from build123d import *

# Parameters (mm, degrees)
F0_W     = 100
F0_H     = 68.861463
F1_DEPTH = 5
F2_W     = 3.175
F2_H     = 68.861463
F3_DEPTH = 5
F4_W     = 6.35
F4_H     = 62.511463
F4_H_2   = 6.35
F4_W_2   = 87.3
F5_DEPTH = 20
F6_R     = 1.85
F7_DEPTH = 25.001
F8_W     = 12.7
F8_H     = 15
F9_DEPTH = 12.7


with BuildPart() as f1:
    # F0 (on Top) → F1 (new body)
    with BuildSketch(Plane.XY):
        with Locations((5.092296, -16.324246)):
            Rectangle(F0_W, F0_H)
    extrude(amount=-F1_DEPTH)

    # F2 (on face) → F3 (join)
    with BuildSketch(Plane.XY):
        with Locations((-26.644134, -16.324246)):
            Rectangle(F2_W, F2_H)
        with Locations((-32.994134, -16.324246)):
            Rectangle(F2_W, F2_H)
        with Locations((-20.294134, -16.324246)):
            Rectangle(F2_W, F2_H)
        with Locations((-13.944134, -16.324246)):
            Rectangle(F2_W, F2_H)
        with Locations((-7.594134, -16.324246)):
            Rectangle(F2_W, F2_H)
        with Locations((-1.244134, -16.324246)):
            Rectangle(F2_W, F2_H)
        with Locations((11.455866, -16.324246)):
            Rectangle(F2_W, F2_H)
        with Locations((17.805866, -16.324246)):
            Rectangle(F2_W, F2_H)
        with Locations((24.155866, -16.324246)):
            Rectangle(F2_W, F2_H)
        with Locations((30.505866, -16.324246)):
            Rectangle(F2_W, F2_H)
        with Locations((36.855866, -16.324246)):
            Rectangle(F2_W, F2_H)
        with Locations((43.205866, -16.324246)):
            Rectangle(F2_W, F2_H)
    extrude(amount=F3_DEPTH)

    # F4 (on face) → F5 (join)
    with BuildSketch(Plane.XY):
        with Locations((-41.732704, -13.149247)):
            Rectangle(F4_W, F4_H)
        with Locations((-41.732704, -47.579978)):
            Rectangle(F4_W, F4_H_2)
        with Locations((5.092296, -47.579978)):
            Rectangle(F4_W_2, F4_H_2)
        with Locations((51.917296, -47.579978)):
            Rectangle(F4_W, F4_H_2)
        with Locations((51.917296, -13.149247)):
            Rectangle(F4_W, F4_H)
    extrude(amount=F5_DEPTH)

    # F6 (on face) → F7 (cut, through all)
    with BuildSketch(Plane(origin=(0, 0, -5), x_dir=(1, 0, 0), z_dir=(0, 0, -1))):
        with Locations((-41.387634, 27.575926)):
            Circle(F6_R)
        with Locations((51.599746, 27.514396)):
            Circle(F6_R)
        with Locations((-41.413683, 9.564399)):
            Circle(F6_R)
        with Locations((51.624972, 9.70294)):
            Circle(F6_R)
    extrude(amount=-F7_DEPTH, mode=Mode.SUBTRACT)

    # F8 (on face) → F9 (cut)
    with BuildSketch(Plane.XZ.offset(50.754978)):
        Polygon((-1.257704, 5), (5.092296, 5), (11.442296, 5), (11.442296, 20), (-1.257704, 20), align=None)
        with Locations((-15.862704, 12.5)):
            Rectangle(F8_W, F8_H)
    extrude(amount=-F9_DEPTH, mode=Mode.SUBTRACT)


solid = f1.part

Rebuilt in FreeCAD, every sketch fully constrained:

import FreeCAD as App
import Part
import Sketcher
Q = App.Units.Quantity


def add_polygon(sketch, points):
    """Adds a closed chain of lines whose ends are joined by coincident constraints."""
    first, n = sketch.GeometryCount, len(points)
    for a, b in zip(points, points[1:] + points[:1]):
        sketch.addGeometry(Part.LineSegment(App.Vector(*a, 0), App.Vector(*b, 0)), False)
    for i in range(n):
        sketch.addConstraint(Sketcher.Constraint("Coincident", first + i, 2, first + (i + 1) % n, 1))

doc = App.newDocument("Part")
body = doc.addObject("PartDesign::Body", "Body")

sketch1 = body.newObject("Sketcher::SketchObject", "Sketch")
sketch1.AttachmentSupport = (doc.getObject("XY_Plane"), [""])
sketch1.MapMode = "FlatFace"
add_polygon(sketch1, [(-45, 18), (-45, -51), (55, -51), (55, 18)])
sketch1.addConstraint(Sketcher.Constraint("Vertical", 0))
sketch1.addConstraint(Sketcher.Constraint("Horizontal", 1))
sketch1.addConstraint(Sketcher.Constraint("Vertical", 2))
sketch1.addConstraint(Sketcher.Constraint("Horizontal", 3))
sketch1.addConstraint(Sketcher.Constraint("DistanceX", 1, 1, 1, 2, Q("100 mm")))
sketch1.addConstraint(Sketcher.Constraint("DistanceY", 0, 2, 0, 1, Q("68.861463 mm")))
sketch1.addConstraint(Sketcher.Constraint("DistanceX", 0, 2, -1, 1, Q("44.907704 mm")))
sketch1.addConstraint(Sketcher.Constraint("DistanceY", 0, 2, -1, 1, Q("50.754978 mm")))
pad1 = body.newObject("PartDesign::Pad", "Pad")
pad1.Profile = sketch1
pad1.Length = 5
pad1.Reversed = True

sketch2 = body.newObject("Sketcher::SketchObject", "Sketch001")
sketch2.AttachmentSupport = (doc.getObject("XY_Plane"), [""])
sketch2.MapMode = "FlatFace"
add_polygon(sketch2, [(-28.2, 18.1), (-28.2, -50.8), (-25.1, -50.8), (-25.1, 18.1)])
add_polygon(sketch2, [(-34.6, 18.1), (-34.6, -50.8), (-31.4, -50.8), (-31.4, 18.1)])
add_polygon(sketch2, [(-21.9, 18.1), (-21.9, -50.8), (-18.7, -50.8), (-18.7, 18.1)])
add_polygon(sketch2, [(-15.5, 18.1), (-15.5, -50.8), (-12.4, -50.8), (-12.4, 18.1)])
add_polygon(sketch2, [(-9.2, 18.1), (-9.2, -50.8), (-6, -50.8), (-6, 18.1)])
add_polygon(sketch2, [(-2.8, 18.1), (-2.8, -50.8), (0.3, -50.8), (0.3, 18.1)])
add_polygon(sketch2, [(9.9, 18.1), (9.9, -50.8), (13, -50.8), (13, 18.1)])
add_polygon(sketch2, [(16.2, 18.1), (16.2, -50.8), (19.4, -50.8), (19.4, 18.1)])
add_polygon(sketch2, [(22.6, 18.1), (22.6, -50.8), (25.7, -50.8), (25.7, 18.1)])
add_polygon(sketch2, [(28.9, 18.1), (28.9, -50.8), (32.1, -50.8), (32.1, 18.1)])
add_polygon(sketch2, [(35.3, 18.1), (35.3, -50.8), (38.4, -50.8), (38.4, 18.1)])
add_polygon(sketch2, [(41.6, 18.1), (41.6, -50.8), (44.8, -50.8), (44.8, 18.1)])
sketch2.addConstraint(Sketcher.Constraint("Vertical", 0))
sketch2.addConstraint(Sketcher.Constraint("Horizontal", 1))
sketch2.addConstraint(Sketcher.Constraint("Vertical", 2))
sketch2.addConstraint(Sketcher.Constraint("Horizontal", 3))
sketch2.addConstraint(Sketcher.Constraint("Vertical", 4))
sketch2.addConstraint(Sketcher.Constraint("Horizontal", 5))
sketch2.addConstraint(Sketcher.Constraint("Vertical", 6))
sketch2.addConstraint(Sketcher.Constraint("Horizontal", 7))
sketch2.addConstraint(Sketcher.Constraint("Vertical", 8))
sketch2.addConstraint(Sketcher.Constraint("Horizontal", 9))
sketch2.addConstraint(Sketcher.Constraint("Vertical", 10))
sketch2.addConstraint(Sketcher.Constraint("Horizontal", 11))
sketch2.addConstraint(Sketcher.Constraint("Vertical", 12))
sketch2.addConstraint(Sketcher.Constraint("Horizontal", 13))
sketch2.addConstraint(Sketcher.Constraint("Vertical", 14))
sketch2.addConstraint(Sketcher.Constraint("Horizontal", 15))
sketch2.addConstraint(Sketcher.Constraint("Vertical", 16))
sketch2.addConstraint(Sketcher.Constraint("Horizontal", 17))
sketch2.addConstraint(Sketcher.Constraint("Vertical", 18))
sketch2.addConstraint(Sketcher.Constraint("Horizontal", 19))
sketch2.addConstraint(Sketcher.Constraint("Vertical", 20))
sketch2.addConstraint(Sketcher.Constraint("Horizontal", 21))
sketch2.addConstraint(Sketcher.Constraint("Vertical", 22))
sketch2.addConstraint(Sketcher.Constraint("Horizontal", 23))
sketch2.addConstraint(Sketcher.Constraint("Vertical", 24))
sketch2.addConstraint(Sketcher.Constraint("Horizontal", 25))
sketch2.addConstraint(Sketcher.Constraint("Vertical", 26))
sketch2.addConstraint(Sketcher.Constraint("Horizontal", 27))
sketch2.addConstraint(Sketcher.Constraint("Vertical", 28))
sketch2.addConstraint(Sketcher.Constraint("Horizontal", 29))
sketch2.addConstraint(Sketcher.Constraint("Vertical", 30))
sketch2.addConstraint(Sketcher.Constraint("Horizontal", 31))
sketch2.addConstraint(Sketcher.Constraint("Vertical", 32))
sketch2.addConstraint(Sketcher.Constraint("Horizontal", 33))
sketch2.addConstraint(Sketcher.Constraint("Vertical", 34))
sketch2.addConstraint(Sketcher.Constraint("Horizontal", 35))
sketch2.addConstraint(Sketcher.Constraint("Vertical", 36))
sketch2.addConstraint(Sketcher.Constraint("Horizontal", 37))
sketch2.addConstraint(Sketcher.Constraint("Vertical", 38))
sketch2.addConstraint(Sketcher.Constraint("Horizontal", 39))
sketch2.addConstraint(Sketcher.Constraint("Vertical", 40))
sketch2.addConstraint(Sketcher.Constraint("Horizontal", 41))
sketch2.addConstraint(Sketcher.Constraint("Vertical", 42))
sketch2.addConstraint(Sketcher.Constraint("Horizontal", 43))
sketch2.addConstraint(Sketcher.Constraint("Vertical", 44))
sketch2.addConstraint(Sketcher.Constraint("Horizontal", 45))
sketch2.addConstraint(Sketcher.Constraint("Vertical", 46))
sketch2.addConstraint(Sketcher.Constraint("Horizontal", 47))
sketch2.addConstraint(Sketcher.Constraint("Horizontal", 1, 2, 4, 2))
sketch2.addConstraint(Sketcher.Constraint("Horizontal", 3, 2, 6, 2))
sketch2.addConstraint(Sketcher.Constraint("Horizontal", 5, 2, 8, 2))
sketch2.addConstraint(Sketcher.Constraint("Horizontal", 7, 2, 10, 2))
sketch2.addConstraint(Sketcher.Constraint("Horizontal", 9, 2, 12, 2))
sketch2.addConstraint(Sketcher.Constraint("Horizontal", 11, 2, 14, 2))
sketch2.addConstraint(Sketcher.Constraint("Horizontal", 13, 2, 16, 2))
sketch2.addConstraint(Sketcher.Constraint("Horizontal", 15, 2, 18, 2))
sketch2.addConstraint(Sketcher.Constraint("Horizontal", 17, 2, 20, 2))
sketch2.addConstraint(Sketcher.Constraint("Horizontal", 19, 2, 22, 2))
sketch2.addConstraint(Sketcher.Constraint("Horizontal", 21, 2, 24, 2))
sketch2.addConstraint(Sketcher.Constraint("Horizontal", 23, 2, 26, 2))
sketch2.addConstraint(Sketcher.Constraint("Horizontal", 25, 2, 28, 2))
sketch2.addConstraint(Sketcher.Constraint("Horizontal", 27, 2, 30, 2))
sketch2.addConstraint(Sketcher.Constraint("Horizontal", 29, 2, 32, 2))
sketch2.addConstraint(Sketcher.Constraint("Horizontal", 31, 2, 34, 2))
sketch2.addConstraint(Sketcher.Constraint("Horizontal", 33, 2, 36, 2))
sketch2.addConstraint(Sketcher.Constraint("Horizontal", 35, 2, 38, 2))
sketch2.addConstraint(Sketcher.Constraint("Horizontal", 37, 2, 40, 2))
sketch2.addConstraint(Sketcher.Constraint("Horizontal", 39, 2, 42, 2))
sketch2.addConstraint(Sketcher.Constraint("Horizontal", 41, 2, 44, 2))
sketch2.addConstraint(Sketcher.Constraint("Horizontal", 43, 2, 46, 2))
sketch2.addConstraint(Sketcher.Constraint("Equal", 3, 5))
sketch2.addConstraint(Sketcher.Constraint("Equal", 7, 9))
sketch2.addConstraint(Sketcher.Constraint("Equal", 11, 13))
sketch2.addConstraint(Sketcher.Constraint("Equal", 15, 17))
sketch2.addConstraint(Sketcher.Constraint("Equal", 19, 21))
sketch2.addConstraint(Sketcher.Constraint("Equal", 23, 25))
sketch2.addConstraint(Sketcher.Constraint("Equal", 27, 29))
sketch2.addConstraint(Sketcher.Constraint("Equal", 31, 33))
sketch2.addConstraint(Sketcher.Constraint("Equal", 35, 37))
sketch2.addConstraint(Sketcher.Constraint("Equal", 39, 41))
sketch2.addConstraint(Sketcher.Constraint("Equal", 43, 45))
sketch2.addConstraint(Sketcher.Constraint("DistanceX", 4, 2, 8, 2, Q("12.7 mm")))
sketch2.addConstraint(Sketcher.Constraint("DistanceX", 0, 2, 12, 2, Q("12.7 mm")))
sketch2.addConstraint(Sketcher.Constraint("DistanceX", 8, 2, 16, 2, Q("12.7 mm")))
sketch2.addConstraint(Sketcher.Constraint("DistanceX", 12, 2, 20, 2, Q("12.7 mm")))
sketch2.addConstraint(Sketcher.Constraint("DistanceX", 20, 2, 24, 2, Q("12.7 mm")))
sketch2.addConstraint(Sketcher.Constraint("DistanceX", 18, 2, 30, 2, Q("25.4 mm")))
sketch2.addConstraint(Sketcher.Constraint("DistanceX", 24, 2, 32, 2, Q("12.7 mm")))
sketch2.addConstraint(Sketcher.Constraint("DistanceX", 28, 2, 36, 2, Q("12.7 mm")))
sketch2.addConstraint(Sketcher.Constraint("DistanceX", 32, 2, 40, 2, Q("12.7 mm")))
sketch2.addConstraint(Sketcher.Constraint("DistanceX", 36, 2, 44, 2, Q("12.7 mm")))
sketch2.addConstraint(Sketcher.Constraint("DistanceX", 1, 1, 1, 2, Q("3.175 mm")))
sketch2.addConstraint(Sketcher.Constraint("DistanceX", 4, 2, 0, 2, Q("6.35 mm")))
sketch2.addConstraint(Sketcher.Constraint("DistanceY", 0, 2, 0, 1, Q("68.861463 mm")))
sketch2.addConstraint(Sketcher.Constraint("DistanceX", 0, 2, -1, 1, Q("28.231634 mm")))
sketch2.addConstraint(Sketcher.Constraint("DistanceY", 0, 2, -1, 1, Q("50.754978 mm")))
pad2 = body.newObject("PartDesign::Pad", "Pad001")
pad2.Profile = sketch2
pad2.Length = 5

sketch3 = body.newObject("Sketcher::SketchObject", "Sketch002")
sketch3.AttachmentSupport = (doc.getObject("XY_Plane"), [""])
sketch3.MapMode = "FlatFace"
add_polygon(sketch3, [(-45, 18), (-45, -51), (55, -51), (55, 18), (49, 18), (49, -44), (-39, -44), (-39, 18)])
sketch3.addConstraint(Sketcher.Constraint("Vertical", 0))
sketch3.addConstraint(Sketcher.Constraint("Horizontal", 1))
sketch3.addConstraint(Sketcher.Constraint("Vertical", 2))
sketch3.addConstraint(Sketcher.Constraint("Horizontal", 3))
sketch3.addConstraint(Sketcher.Constraint("Vertical", 4))
sketch3.addConstraint(Sketcher.Constraint("Horizontal", 5))
sketch3.addConstraint(Sketcher.Constraint("Vertical", 6))
sketch3.addConstraint(Sketcher.Constraint("Horizontal", 7))
sketch3.addConstraint(Sketcher.Constraint("Horizontal", 3, 2, 6, 2))
sketch3.addConstraint(Sketcher.Constraint("Equal", 3, 7))
sketch3.addConstraint(Sketcher.Constraint("DistanceX", 1, 1, 1, 2, Q("100 mm")))
sketch3.addConstraint(Sketcher.Constraint("DistanceX", 5, 2, 5, 1, Q("87.3 mm")))
sketch3.addConstraint(Sketcher.Constraint("DistanceY", 1, 2, 4, 2, Q("6.35 mm")))
sketch3.addConstraint(Sketcher.Constraint("DistanceY", 0, 2, 0, 1, Q("68.861463 mm")))
sketch3.addConstraint(Sketcher.Constraint("DistanceX", 0, 2, -1, 1, Q("44.907704 mm")))
sketch3.addConstraint(Sketcher.Constraint("DistanceY", 0, 2, -1, 1, Q("50.754978 mm")))
pad3 = body.newObject("PartDesign::Pad", "Pad002")
pad3.Profile = sketch3
pad3.Length = 20

sketch4 = body.newObject("Sketcher::SketchObject", "Sketch003")
sketch4.AttachmentSupport = (doc.getObject("XY_Plane"), [""])
sketch4.MapMode = "FlatFace"
sketch4.AttachmentOffset = App.Placement(App.Vector(0, 0, -5), App.Rotation())
sketch4.addGeometry(Part.Circle(App.Vector(-41.4, -27.6, 0), App.Vector(0, 0, 1), 1.9), False)
sketch4.addGeometry(Part.Circle(App.Vector(51.6, -27.5, 0), App.Vector(0, 0, 1), 1.9), False)
sketch4.addGeometry(Part.Circle(App.Vector(-41.4, -9.6, 0), App.Vector(0, 0, 1), 1.9), False)
sketch4.addGeometry(Part.Circle(App.Vector(51.6, -9.7, 0), App.Vector(0, 0, 1), 1.9), False)
sketch4.addConstraint(Sketcher.Constraint("Equal", 0, 1))
sketch4.addConstraint(Sketcher.Constraint("Equal", 1, 2))
sketch4.addConstraint(Sketcher.Constraint("Equal", 2, 3))
sketch4.addConstraint(Sketcher.Constraint("Diameter", 0, Q("3.7 mm")))
sketch4.addConstraint(Sketcher.Constraint("DistanceY", 2, 3, -1, 1, Q("9.564399 mm")))
sketch4.addConstraint(Sketcher.Constraint("DistanceY", 3, 3, -1, 1, Q("9.70294 mm")))
sketch4.addConstraint(Sketcher.Constraint("DistanceX", 0, 3, 1, 3, Q("92.98738 mm")))
sketch4.addConstraint(Sketcher.Constraint("DistanceY", 0, 3, 1, 3, Q("0.06153 mm")))
sketch4.addConstraint(Sketcher.Constraint("DistanceX", 2, 3, 0, 3, Q("0.026049 mm")))
sketch4.addConstraint(Sketcher.Constraint("DistanceX", 0, 3, -1, 1, Q("41.387634 mm")))
sketch4.addConstraint(Sketcher.Constraint("DistanceY", 0, 3, -1, 1, Q("27.575926 mm")))
sketch4.addConstraint(Sketcher.Constraint("DistanceX", -1, 1, 3, 3, Q("51.624972 mm")))
pocket1 = body.newObject("PartDesign::Pocket", "Pocket")
pocket1.Profile = sketch4
pocket1.Type = "ThroughAll"
pocket1.Reversed = True

sketch5 = body.newObject("Sketcher::SketchObject", "Sketch004")
sketch5.AttachmentSupport = (doc.getObject("XZ_Plane"), [""])
sketch5.MapMode = "FlatFace"
sketch5.AttachmentOffset = App.Placement(App.Vector(0, 0, 50.754978), App.Rotation())
add_polygon(sketch5, [(-1, 5), (11, 5), (11, 20), (-1, 20)])
add_polygon(sketch5, [(-22, 20), (-22, 5), (-10, 5), (-10, 20)])
sketch5.addConstraint(Sketcher.Constraint("Horizontal", 0))
sketch5.addConstraint(Sketcher.Constraint("Vertical", 1))
sketch5.addConstraint(Sketcher.Constraint("Horizontal", 2))
sketch5.addConstraint(Sketcher.Constraint("Vertical", 3))
sketch5.addConstraint(Sketcher.Constraint("Vertical", 4))
sketch5.addConstraint(Sketcher.Constraint("Horizontal", 5))
sketch5.addConstraint(Sketcher.Constraint("Vertical", 6))
sketch5.addConstraint(Sketcher.Constraint("Horizontal", 7))
sketch5.addConstraint(Sketcher.Constraint("Horizontal", 3, 2, 4, 2))
sketch5.addConstraint(Sketcher.Constraint("Horizontal", 2, 2, 6, 2))
sketch5.addConstraint(Sketcher.Constraint("Equal", 2, 5))
sketch5.addConstraint(Sketcher.Constraint("DistanceY", 1, 1, 1, 2, Q("15 mm")))
sketch5.addConstraint(Sketcher.Constraint("DistanceX", 0, 1, 0, 2, Q("12.7 mm")))
sketch5.addConstraint(Sketcher.Constraint("DistanceY", -1, 1, 0, 2, Q("5 mm")))
sketch5.addConstraint(Sketcher.Constraint("DistanceX", 4, 2, 3, 2, Q("20.955 mm")))
sketch5.addConstraint(Sketcher.Constraint("DistanceX", -1, 1, 0, 2, Q("11.442296 mm")))
pocket2 = body.newObject("PartDesign::Pocket", "Pocket001")
pocket2.Profile = sketch5
pocket2.Length = 12.7

doc.recompute()
